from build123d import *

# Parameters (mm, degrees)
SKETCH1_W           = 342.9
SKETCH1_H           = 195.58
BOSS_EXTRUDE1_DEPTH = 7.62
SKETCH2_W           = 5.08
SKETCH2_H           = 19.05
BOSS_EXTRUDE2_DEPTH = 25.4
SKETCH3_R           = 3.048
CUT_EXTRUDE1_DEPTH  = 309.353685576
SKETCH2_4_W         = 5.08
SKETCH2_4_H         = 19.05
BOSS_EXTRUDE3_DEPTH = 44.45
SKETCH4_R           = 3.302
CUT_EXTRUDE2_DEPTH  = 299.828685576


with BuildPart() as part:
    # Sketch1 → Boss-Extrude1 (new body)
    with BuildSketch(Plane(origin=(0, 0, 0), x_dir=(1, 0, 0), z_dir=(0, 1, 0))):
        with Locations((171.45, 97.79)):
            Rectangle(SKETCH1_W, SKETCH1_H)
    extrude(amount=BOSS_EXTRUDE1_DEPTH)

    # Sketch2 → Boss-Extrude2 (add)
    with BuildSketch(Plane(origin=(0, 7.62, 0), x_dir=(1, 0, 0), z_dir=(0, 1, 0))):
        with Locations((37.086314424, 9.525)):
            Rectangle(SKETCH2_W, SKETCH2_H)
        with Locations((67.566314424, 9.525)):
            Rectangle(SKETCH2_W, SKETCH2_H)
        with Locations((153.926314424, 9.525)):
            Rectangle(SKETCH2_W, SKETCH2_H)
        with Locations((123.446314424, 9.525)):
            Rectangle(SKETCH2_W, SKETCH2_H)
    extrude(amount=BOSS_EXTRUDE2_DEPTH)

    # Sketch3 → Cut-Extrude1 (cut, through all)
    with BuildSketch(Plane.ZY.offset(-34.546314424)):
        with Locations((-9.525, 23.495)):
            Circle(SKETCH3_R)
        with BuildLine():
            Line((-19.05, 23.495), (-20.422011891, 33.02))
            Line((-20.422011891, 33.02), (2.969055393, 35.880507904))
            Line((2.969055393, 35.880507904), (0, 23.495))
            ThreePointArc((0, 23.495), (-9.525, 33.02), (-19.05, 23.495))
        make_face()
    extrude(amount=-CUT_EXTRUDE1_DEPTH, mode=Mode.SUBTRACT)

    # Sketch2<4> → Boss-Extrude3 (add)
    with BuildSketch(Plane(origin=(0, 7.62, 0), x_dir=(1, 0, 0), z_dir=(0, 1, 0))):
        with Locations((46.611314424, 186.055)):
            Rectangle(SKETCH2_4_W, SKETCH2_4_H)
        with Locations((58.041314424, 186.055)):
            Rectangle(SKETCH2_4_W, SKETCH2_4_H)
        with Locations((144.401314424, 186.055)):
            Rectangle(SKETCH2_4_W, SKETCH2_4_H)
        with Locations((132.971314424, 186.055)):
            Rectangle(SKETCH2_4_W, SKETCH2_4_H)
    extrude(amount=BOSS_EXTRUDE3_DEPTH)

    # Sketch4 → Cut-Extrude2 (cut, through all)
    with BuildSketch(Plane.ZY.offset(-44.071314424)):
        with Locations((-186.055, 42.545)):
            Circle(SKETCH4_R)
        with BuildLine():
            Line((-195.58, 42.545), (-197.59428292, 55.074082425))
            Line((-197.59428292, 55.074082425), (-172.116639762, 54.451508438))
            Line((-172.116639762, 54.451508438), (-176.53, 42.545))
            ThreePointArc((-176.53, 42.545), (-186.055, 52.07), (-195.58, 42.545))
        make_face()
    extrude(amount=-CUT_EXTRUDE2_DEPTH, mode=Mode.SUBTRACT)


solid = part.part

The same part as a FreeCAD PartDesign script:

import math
import FreeCAD as App
import Part
import Sketcher
from FreeCAD import Vector
Q = App.Units.Quantity

doc = App.newDocument("Part")
body = doc.addObject("PartDesign::Body", "Body")

# Sketch on XZ plane
sketch1 = doc.addObject("Sketcher::SketchObject", "Sketch")
body.addObject(sketch1)
sketch1.AttachmentSupport = (doc.XZ_Plane, [""])
sketch1.MapMode = "FlatFace"
sketch1.addGeometry([
    Part.LineSegment(Vector(0, -196, 0), Vector(0, 0, 0)),
    Part.LineSegment(Vector(0, 0, 0), Vector(343, 0, 0)),
    Part.LineSegment(Vector(343, 0, 0), Vector(343, -196, 0)),
    Part.LineSegment(Vector(343, -196, 0), Vector(0, -196, 0)),
], False)
sketch1.addConstraint([
    Sketcher.Constraint("Coincident", 0, 2, 1, 1),
    Sketcher.Constraint("Coincident", 1, 2, 2, 1),
    Sketcher.Constraint("Coincident", 2, 2, 3, 1),
    Sketcher.Constraint("Coincident", 3, 2, 0, 1),
    Sketcher.Constraint("Vertical", 0),
    Sketcher.Constraint("Horizontal", 1),
    Sketcher.Constraint("Vertical", 2),
    Sketcher.Constraint("Horizontal", 3),
    Sketcher.Constraint("Coincident", 0, 2, -1, 1),
    Sketcher.Constraint("DistanceX", 1, 1, 1, 2, Q("13.5 in")),
    Sketcher.Constraint("DistanceY", 0, 1, 0, 2, Q("7.7 in")),
])
pad1 = doc.addObject("PartDesign::Pad", "Pad")
body.addObject(pad1)
pad1.Profile = sketch1
pad1.Length = Q("0.3 in")
pad1.Reversed = True

# Sketch on XZ plane
sketch2 = doc.addObject("Sketcher::SketchObject", "Sketch001")
body.addObject(sketch2)
sketch2.AttachmentSupport = (doc.XZ_Plane, [""])
sketch2.MapMode = "FlatFace"
sketch2.AttachmentOffset = App.Placement(Vector(0, 0, -0.3 * 25.4), App.Rotation())
sketch2.addGeometry([
    Part.LineSegment(Vector(35, -19, 0), Vector(35, 0, 0)),  # 0
    Part.LineSegment(Vector(35, 0, 0), Vector(40, 0, 0)),  # 1
    Part.LineSegment(Vector(40, 0, 0), Vector(40, -19, 0)),  # 2
    Part.LineSegment(Vector(40, -19, 0), Vector(35, -19, 0)),  # 3
    Part.LineSegment(Vector(65, -19, 0), Vector(65, 0, 0)),  # 4
    Part.LineSegment(Vector(65, 0, 0), Vector(70, 0, 0)),  # 5
    Part.LineSegment(Vector(70, 0, 0), Vector(70, -19, 0)),  # 6
    Part.LineSegment(Vector(70, -19, 0), Vector(65, -19, 0)),  # 7
    Part.LineSegment(Vector(151, -19, 0), Vector(151, 0, 0)),  # 8
    Part.LineSegment(Vector(151, 0, 0), Vector(156, 0, 0)),  # 9
    Part.LineSegment(Vector(156, 0, 0), Vector(156, -19, 0)),  # 10
    Part.LineSegment(Vector(156, -19, 0), Vector(151, -19, 0)),  # 11
    Part.LineSegment(Vector(121, -19, 0), Vector(121, 0, 0)),  # 12
    Part.LineSegment(Vector(121, 0, 0), Vector(126, 0, 0)),  # 13
    Part.LineSegment(Vector(126, 0, 0), Vector(126, -19, 0)),  # 14
    Part.LineSegment(Vector(126, -19, 0), Vector(121, -19, 0)),  # 15
], False)
sketch2.addConstraint([
    Sketcher.Constraint("Coincident", 0, 2, 1, 1),
    Sketcher.Constraint("Coincident", 1, 2, 2, 1),
    Sketcher.Constraint("Coincident", 2, 2, 3, 1),
    Sketcher.Constraint("Coincident", 3, 2, 0, 1),
    Sketcher.Constraint("Coincident", 4, 2, 5, 1),
    Sketcher.Constraint("Coincident", 5, 2, 6, 1),
    Sketcher.Constraint("Coincident", 6, 2, 7, 1),
    Sketcher.Constraint("Coincident", 7, 2, 4, 1),
    Sketcher.Constraint("Coincident", 8, 2, 9, 1),
    Sketcher.Constraint("Coincident", 9, 2, 10, 1),
    Sketcher.Constraint("Coincident", 10, 2, 11, 1),
    Sketcher.Constraint("Coincident", 11, 2, 8, 1),
    Sketcher.Constraint("Coincident", 12, 2, 13, 1),
    Sketcher.Constraint("Coincident", 13, 2, 14, 1),
    Sketcher.Constraint("Coincident", 14, 2, 15, 1),
    Sketcher.Constraint("Coincident", 15, 2, 12, 1),
    Sketcher.Constraint("Vertical", 0),
    Sketcher.Constraint("Horizontal", 1),
    Sketcher.Constraint("Vertical", 2),
    Sketcher.Constraint("Horizontal", 3),
    Sketcher.Constraint("Vertical", 4),
    Sketcher.Constraint("Horizontal", 5),
    Sketcher.Constraint("Vertical", 6),
    Sketcher.Constraint("Horizontal", 7),
    Sketcher.Constraint("Vertical", 8),
    Sketcher.Constraint("Horizontal", 9),
    Sketcher.Constraint("Vertical", 10),
    Sketcher.Constraint("Horizontal", 11),
    Sketcher.Constraint("Vertical", 12),
    Sketcher.Constraint("Horizontal", 13),
    Sketcher.Constraint("Vertical", 14),
    Sketcher.Constraint("Horizontal", 15),
    Sketcher.Constraint("PointOnObject", 0, 2, -1),
    Sketcher.Constraint("PointOnObject", 4, 2, -1),
    Sketcher.Constraint("PointOnObject", 8, 2, -1),
    Sketcher.Constraint("PointOnObject", 12, 2, -1),
    Sketcher.Constraint("Horizontal", 3, 2, 6, 2),
    Sketcher.Constraint("Horizontal", 7, 2, 10, 2),
    Sketcher.Constraint("Horizontal", 11, 2, 14, 2),
    Sketcher.Constraint("Equal", 3, 5),
    Sketcher.Constraint("Equal", 7, 9),
    Sketcher.Constraint("Equal", 11, 13),
    Sketcher.Constraint("DistanceX", 1, 1, 1, 2, Q("0.2 in")),
    Sketcher.Constraint("DistanceX", 1, 2, 4, 2, Q("1 in")),
    Sketcher.Constraint("DistanceX", 5, 2, 12, 2, Q("2 in")),
    Sketcher.Constraint("DistanceX", 13, 2, 8, 2, Q("1 in")),
    Sketcher.Constraint("DistanceY", 0, 1, 0, 2, Q("0.75 in")),
    Sketcher.Constraint("DistanceX", -1, 1, 0, 2, 34.546314),
])
pad2 = doc.addObject("PartDesign::Pad", "Pad001")
body.addObject(pad2)
pad2.Profile = sketch2
pad2.Length = Q("1 in")
pad2.Reversed = True

# Sketch on YZ plane
sketch3 = doc.addObject("Sketcher::SketchObject", "Sketch002")
body.addObject(sketch3)
sketch3.AttachmentSupport = (doc.YZ_Plane, [""])
sketch3.MapMode = "FlatFace"
sketch3.AttachmentOffset = App.Placement(Vector(0, 0, 34.546314), App.Rotation())
sketch3.addGeometry([
    Part.Circle(Vector(23.5, -9.5, 0), Vector(0, 0, 1), 3),  # 0
    Part.LineSegment(Vector(33, -20.4, 0), Vector(23.5, -19.1, 0)),  # 1
    Part.ArcOfCircle(Part.Circle(Vector(23.5, -9.5, 0), Vector(0, 0, 1), 9.5), math.radians(-90), math.radians(90)),  # 2
    Part.LineSegment(Vector(23.5, 0, 0), Vector(35.9, 3, 0)),  # 3
    Part.LineSegment(Vector(35.9, 3, 0), Vector(33, -20.4, 0)),  # 4
], False)
sketch3.addConstraint([
    Sketcher.Constraint("Coincident", 1, 2, 2, 1),
    Sketcher.Constraint("Coincident", 2, 2, 3, 1),
    Sketcher.Constraint("Coincident", 3, 2, 4, 1),
    Sketcher.Constraint("Coincident", 4, 2, 1, 1),
    Sketcher.Constraint("Coincident", 2, 3, 0, 3),
    Sketcher.Constraint("PointOnObject", 2, 2, -1),
    Sketcher.Constraint("Vertical", 2, 3, 1, 2),
    Sketcher.Constraint("Vertical", 1, 2, 2, 2),
    Sketcher.Constraint("Diameter", 0, Q("0.24 in")),
    Sketcher.Constraint("Radius", 2, Q("0.375 in")),
    Sketcher.Constraint("DistanceX", -1, 1, 4, 2, Q("1.3 in")),
    Sketcher.Constraint("DistanceX", -1, 1, 0, 3, Q("0.925 in")),
    Sketcher.Constraint("Distance", 3, 12.736408),
    Sketcher.Constraint("DistanceY", 4, 2, -1, 1, 20.422012),
    Sketcher.Constraint("Distance", 4, 23.565325),
])
pocket1 = doc.addObject("PartDesign::Pocket", "Pocket")
body.addObject(pocket1)
pocket1.Profile = sketch3
pocket1.Type = "ThroughAll"
pocket1.Reversed = True

# Sketch on XZ plane
sketch4 = doc.addObject("Sketcher::SketchObject", "Sketch003")
body.addObject(sketch4)
sketch4.AttachmentSupport = (doc.XZ_Plane, [""])
sketch4.MapMode = "FlatFace"
sketch4.AttachmentOffset = App.Placement(Vector(0, 0, -0.3 * 25.4), App.Rotation())
sketch4.addGeometry([
    Part.LineSegment(Vector(44, -196, 0), Vector(44, -177, 0)),  # 0
    Part.LineSegment(Vector(44, -177, 0), Vector(49, -177, 0)),  # 1
    Part.LineSegment(Vector(49, -177, 0), Vector(49, -196, 0)),  # 2
    Part.LineSegment(Vector(49, -196, 0), Vector(44, -196, 0)),  # 3
    Part.LineSegment(Vector(56, -196, 0), Vector(56, -177, 0)),  # 4
    Part.LineSegment(Vector(56, -177, 0), Vector(61, -177, 0)),  # 5
    Part.LineSegment(Vector(61, -177, 0), Vector(61, -196, 0)),  # 6
    Part.LineSegment(Vector(61, -196, 0), Vector(56, -196, 0)),  # 7
    Part.LineSegment(Vector(142, -196, 0), Vector(142, -177, 0)),  # 8
    Part.LineSegment(Vector(142, -177, 0), Vector(147, -177, 0)),  # 9
    Part.LineSegment(Vector(147, -177, 0), Vector(147, -196, 0)),  # 10
    Part.LineSegment(Vector(147, -196, 0), Vector(142, -196, 0)),  # 11
    Part.LineSegment(Vector(130, -196, 0), Vector(130, -177, 0)),  # 12
    Part.LineSegment(Vector(130, -177, 0), Vector(136, -177, 0)),  # 13
    Part.LineSegment(Vector(136, -177, 0), Vector(136, -196, 0)),  # 14
    Part.LineSegment(Vector(136, -196, 0), Vector(130, -196, 0)),  # 15
], False)
sketch4.addConstraint([
    Sketcher.Constraint("Coincident", 0, 2, 1, 1),
    Sketcher.Constraint("Coincident", 1, 2, 2, 1),
    Sketcher.Constraint("Coincident", 2, 2, 3, 1),
    Sketcher.Constraint("Coincident", 3, 2, 0, 1),
    Sketcher.Constraint("Coincident", 4, 2, 5, 1),
    Sketcher.Constraint("Coincident", 5, 2, 6, 1),
    Sketcher.Constraint("Coincident", 6, 2, 7, 1),
    Sketcher.Constraint("Coincident", 7, 2, 4, 1),
    Sketcher.Constraint("Coincident", 8, 2, 9, 1),
    Sketcher.Constraint("Coincident", 9, 2, 10, 1),
    Sketcher.Constraint("Coincident", 10, 2, 11, 1),
    Sketcher.Constraint("Coincident", 11, 2, 8, 1),
    Sketcher.Constraint("Coincident", 12, 2, 13, 1),
    Sketcher.Constraint("Coincident", 13, 2, 14, 1),
    Sketcher.Constraint("Coincident", 14, 2, 15, 1),
    Sketcher.Constraint("Coincident", 15, 2, 12, 1),
    Sketcher.Constraint("Vertical", 0),
    Sketcher.Constraint("Horizontal", 1),
    Sketcher.Constraint("Vertical", 2),
    Sketcher.Constraint("Horizontal", 3),
    Sketcher.Constraint("Vertical", 4),
    Sketcher.Constraint("Horizontal", 5),
    Sketcher.Constraint("Vertical", 6),
    Sketcher.Constraint("Horizontal", 7),
    Sketcher.Constraint("Vertical", 8),
    Sketcher.Constraint("Horizontal", 9),
    Sketcher.Constraint("Vertical", 10),
    Sketcher.Constraint("Horizontal", 11),
    Sketcher.Constraint("Vertical", 12),
    Sketcher.Constraint("Horizontal", 13),
    Sketcher.Constraint("Vertical", 14),
    Sketcher.Constraint("Horizontal", 15),
    Sketcher.Constraint("Horizontal", 1, 2, 4, 2),
    Sketcher.Constraint("Horizontal", 3, 2, 6, 2),
    Sketcher.Constraint("Horizontal", 5, 2, 8, 2),
    Sketcher.Constraint("Horizontal", 7, 2, 10, 2),
    Sketcher.Constraint("Horizontal", 9, 2, 12, 2),
    Sketcher.Constraint("Horizontal", 11, 2, 14, 2),
    Sketcher.Constraint("Equal", 3, 5),
    Sketcher.Constraint("Equal", 7, 9),
    Sketcher.Constraint("Equal", 11, 13),
    Sketcher.Constraint("DistanceX", 1, 1, 1, 2, Q("0.2 in")),
    Sketcher.Constraint("DistanceY", 0, 1, 0, 2, Q("0.75 in")),
    Sketcher.Constraint("DistanceY", 2, 2, -1, 1, Q("7.7 in")),
    Sketcher.Constraint("DistanceX", 5, 2, 8, 2, Q("3.2 in")),
    Sketcher.Constraint("DistanceX", 1, 2, 4, 2, Q("0.25 in")),
    Sketcher.Constraint("DistanceX", 12, 2, 8, 2, Q("0.45 in")),
    Sketcher.Constraint("DistanceX", -1, 1, 0, 2, 44.071314),
])
pad3 = doc.addObject("PartDesign::Pad", "Pad002")
body.addObject(pad3)
pad3.Profile = sketch4
pad3.Length = Q("1.75 in")
pad3.Reversed = True

# Sketch on YZ plane
sketch5 = doc.addObject("Sketcher::SketchObject", "Sketch004")
body.addObject(sketch5)
sketch5.AttachmentSupport = (doc.YZ_Plane, [""])
sketch5.MapMode = "FlatFace"
sketch5.AttachmentOffset = App.Placement(Vector(0, 0, 44.071314), App.Rotation())
sketch5.addGeometry([
    Part.Circle(Vector(42.5, -186.1, 0), Vector(0, 0, 1), 3.3),  # 0
    Part.LineSegment(Vector(55.1, -197.6, 0), Vector(42.5, -195.6, 0)),  # 1
    Part.ArcOfCircle(Part.Circle(Vector(42.5, -186.1, 0), Vector(0, 0, 1), 9.5), math.radians(-90), math.radians(90)),  # 2
    Part.LineSegment(Vector(42.5, -176.5, 0), Vector(54.5, -172.1, 0)),  # 3
    Part.LineSegment(Vector(54.5, -172.1, 0), Vector(55.1, -197.6, 0)),  # 4
], False)
sketch5.addConstraint([
    Sketcher.Constraint("Coincident", 1, 2, 2, 1),
    Sketcher.Constraint("Coincident", 2, 2, 3, 1),
    Sketcher.Constraint("Coincident", 3, 2, 4, 1),
    Sketcher.Constraint("Coincident", 4, 2, 1, 1),
    Sketcher.Constraint("Coincident", 2, 3, 0, 3),
    Sketcher.Constraint("Vertical", 2, 3, 1, 2),
    Sketcher.Constraint("Vertical", 1, 2, 2, 2),
    Sketcher.Constraint("Diameter", 0, Q("0.26 in")),
    Sketcher.Constraint("Radius", 2, Q("0.375 in")),
    Sketcher.Constraint("DistanceY", 1, 2, -1, 1, Q("7.7 in")),
    Sketcher.Constraint("DistanceX", -1, 1, 0, 3, Q("1.675 in")),
    Sketcher.Constraint("Distance", 4, 25.485249),
    Sketcher.Constraint("DistanceX", -1, 1, 3, 2, 54.451508),
    Sketcher.Constraint("DistanceY", 3, 2, -1, 1, 172.11664),
    Sketcher.Constraint("Distance", 1, 12.689966),
])
pocket2 = doc.addObject("PartDesign::Pocket", "Pocket001")
body.addObject(pocket2)
pocket2.Profile = sketch5
pocket2.Type = "ThroughAll"
pocket2.Reversed = True

doc.recompute()
